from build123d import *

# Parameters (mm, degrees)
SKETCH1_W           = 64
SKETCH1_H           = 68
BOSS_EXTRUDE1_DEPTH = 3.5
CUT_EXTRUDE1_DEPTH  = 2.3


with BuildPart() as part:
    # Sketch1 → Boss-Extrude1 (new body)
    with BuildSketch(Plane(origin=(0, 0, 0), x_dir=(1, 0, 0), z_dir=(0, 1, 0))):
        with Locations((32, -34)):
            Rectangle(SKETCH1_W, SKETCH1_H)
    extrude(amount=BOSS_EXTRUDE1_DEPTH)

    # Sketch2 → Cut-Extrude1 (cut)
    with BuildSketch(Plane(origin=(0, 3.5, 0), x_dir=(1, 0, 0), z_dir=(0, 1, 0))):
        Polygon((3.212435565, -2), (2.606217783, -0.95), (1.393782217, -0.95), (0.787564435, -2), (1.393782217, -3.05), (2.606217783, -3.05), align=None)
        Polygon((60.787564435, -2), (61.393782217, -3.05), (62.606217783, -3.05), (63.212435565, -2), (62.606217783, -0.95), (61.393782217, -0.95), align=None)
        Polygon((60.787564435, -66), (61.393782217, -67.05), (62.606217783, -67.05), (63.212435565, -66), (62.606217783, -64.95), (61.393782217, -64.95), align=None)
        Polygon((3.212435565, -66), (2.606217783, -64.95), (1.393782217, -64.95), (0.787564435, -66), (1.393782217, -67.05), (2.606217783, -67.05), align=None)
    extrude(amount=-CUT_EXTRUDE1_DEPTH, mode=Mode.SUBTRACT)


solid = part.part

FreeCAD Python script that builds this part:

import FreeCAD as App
import Part
import Sketcher
Q = App.Units.Quantity

doc = App.newDocument("Part")
params = doc.addObject("Spreadsheet::Sheet", "Params")
for row, (alias, value) in enumerate([
    ("sketch1_width", "64 mm"),
    ("sketch1_height", "68 mm"),
    ("pad1_length", "3.5 mm"),
    ("pocket1_length", "2.3 mm"),
], start=1):
    params.set(f"A{row}", alias)
    params.set(f"B{row}", "=" + value)
    params.setAlias(f"B{row}", alias)

body = doc.addObject("PartDesign::Body", "Body")

# Sketch on XZ plane
sketch1 = body.newObject("Sketcher::SketchObject", "Sketch")
sketch1.AttachmentSupport = (doc.getObject("XZ_Plane"), [""])
sketch1.MapMode = "FlatFace"
sketch1.addGeometry(Part.LineSegment(App.Vector(0, 0, 0), App.Vector(0, 68, 0)), False)
sketch1.addGeometry(Part.LineSegment(App.Vector(0, 68, 0), App.Vector(64, 68, 0)), False)
sketch1.addGeometry(Part.LineSegment(App.Vector(64, 68, 0), App.Vector(64, 0, 0)), False)
sketch1.addGeometry(Part.LineSegment(App.Vector(64, 0, 0), App.Vector(0, 0, 0)), False)
sketch1.addConstraint(Sketcher.Constraint("Coincident", 0, 2, 1, 1))
sketch1.addConstraint(Sketcher.Constraint("Coincident", 1, 2, 2, 1))
sketch1.addConstraint(Sketcher.Constraint("Coincident", 2, 2, 3, 1))
sketch1.addConstraint(Sketcher.Constraint("Coincident", 3, 2, 0, 1))
sketch1.addConstraint(Sketcher.Constraint("Vertical", 0))
sketch1.addConstraint(Sketcher.Constraint("Horizontal", 1))
sketch1.addConstraint(Sketcher.Constraint("Vertical", 2))
sketch1.addConstraint(Sketcher.Constraint("Horizontal", 3))
sketch1.addConstraint(Sketcher.Constraint("Coincident", 3, 2, -1, 1))
sketch1.addConstraint(Sketcher.Constraint("DistanceX", 1, 1, 1, 2, Q("64 mm")))
sketch1.addConstraint(Sketcher.Constraint("DistanceY", 0, 1, 0, 2, Q("68 mm")))
sketch1.setExpression("Constraints[9]", "Params.sketch1_width")
sketch1.setExpression("Constraints[10]", "Params.sketch1_height")
pad1 = body.newObject("PartDesign::Pad", "Pad")
pad1.Profile = sketch1
pad1.setExpression("Length", "Params.pad1_length")
pad1.Reversed = True

# Sketch on XZ plane
sketch2 = body.newObject("Sketcher::SketchObject", "Sketch001")
sketch2.AttachmentSupport = (doc.getObject("XZ_Plane"), [""])
sketch2.MapMode = "FlatFace"
sketch2.AttachmentOffset = App.Placement(App.Vector(0, 0, -3.5), App.Rotation())
sketch2.addGeometry(Part.LineSegment(App.Vector(3.2, 2, 0), App.Vector(2.6, 0.9, 0)), False)
sketch2.addGeometry(Part.LineSegment(App.Vector(2.6, 0.9, 0), App.Vector(1.4, 0.9, 0)), False)
sketch2.addGeometry(Part.LineSegment(App.Vector(1.4, 0.9, 0), App.Vector(0.8, 2, 0)), False)
sketch2.addGeometry(Part.LineSegment(App.Vector(0.8, 2, 0), App.Vector(1.4, 3, 0)), False)
sketch2.addGeometry(Part.LineSegment(App.Vector(1.4, 3, 0), App.Vector(2.6, 3, 0)), False)
sketch2.addGeometry(Part.LineSegment(App.Vector(2.6, 3, 0), App.Vector(3.2, 2, 0)), False)
sketch2.addGeometry(Part.LineSegment(App.Vector(60.8, 2, 0), App.Vector(61.4, 3, 0)), False)
sketch2.addGeometry(Part.LineSegment(App.Vector(61.4, 3, 0), App.Vector(62.6, 3, 0)), False)
sketch2.addGeometry(Part.LineSegment(App.Vector(62.6, 3, 0), App.Vector(63.2, 2, 0)), False)
sketch2.addGeometry(Part.LineSegment(App.Vector(63.2, 2, 0), App.Vector(62.6, 0.9, 0)), False)
sketch2.addGeometry(Part.LineSegment(App.Vector(62.6, 0.9, 0), App.Vector(61.4, 0.9, 0)), False)
sketch2.addGeometry(Part.LineSegment(App.Vector(61.4, 0.9, 0), App.Vector(60.8, 2, 0)), False)
sketch2.addGeometry(Part.LineSegment(App.Vector(60.8, 66, 0), App.Vector(61.4, 67, 0)), False)
sketch2.addGeometry(Part.LineSegment(App.Vector(61.4, 67, 0), App.Vector(62.6, 67, 0)), False)
sketch2.addGeometry(Part.LineSegment(App.Vector(62.6, 67, 0), App.Vector(63.2, 66, 0)), False)
sketch2.addGeometry(Part.LineSegment(App.Vector(63.2, 66, 0), App.Vector(62.6, 65, 0)), False)
sketch2.addGeometry(Part.LineSegment(App.Vector(62.6, 65, 0), App.Vector(61.4, 65, 0)), False)
sketch2.addGeometry(Part.LineSegment(App.Vector(61.4, 65, 0), App.Vector(60.8, 66, 0)), False)
sketch2.addGeometry(Part.LineSegment(App.Vector(3.2, 66, 0), App.Vector(2.6, 65, 0)), False)
sketch2.addGeometry(Part.LineSegment(App.Vector(2.6, 65, 0), App.Vector(1.4, 65, 0)), False)
sketch2.addGeometry(Part.LineSegment(App.Vector(1.4, 65, 0), App.Vector(0.8, 66, 0)), False)
sketch2.addGeometry(Part.LineSegment(App.Vector(0.8, 66, 0), App.Vector(1.4, 67, 0)), False)
sketch2.addGeometry(Part.LineSegment(App.Vector(1.4, 67, 0), App.Vector(2.6, 67, 0)), False)
sketch2.addGeometry(Part.LineSegment(App.Vector(2.6, 67, 0), App.Vector(3.2, 66, 0)), False)
sketch2.addConstraint(Sketcher.Constraint("Coincident", 0, 2, 1, 1))
sketch2.addConstraint(Sketcher.Constraint("Coincident", 1, 2, 2, 1))
sketch2.addConstraint(Sketcher.Constraint("Coincident", 2, 2, 3, 1))
sketch2.addConstraint(Sketcher.Constraint("Coincident", 3, 2, 4, 1))
sketch2.addConstraint(Sketcher.Constraint("Coincident", 4, 2, 5, 1))
sketch2.addConstraint(Sketcher.Constraint("Coincident", 5, 2, 0, 1))
sketch2.addConstraint(Sketcher.Constraint("Coincident", 6, 2, 7, 1))
sketch2.addConstraint(Sketcher.Constraint("Coincident", 7, 2, 8, 1))
sketch2.addConstraint(Sketcher.Constraint("Coincident", 8, 2, 9, 1))
sketch2.addConstraint(Sketcher.Constraint("Coincident", 9, 2, 10, 1))
sketch2.addConstraint(Sketcher.Constraint("Coincident", 10, 2, 11, 1))
sketch2.addConstraint(Sketcher.Constraint("Coincident", 11, 2, 6, 1))
sketch2.addConstraint(Sketcher.Constraint("Coincident", 12, 2, 13, 1))
sketch2.addConstraint(Sketcher.Constraint("Coincident", 13, 2, 14, 1))
sketch2.addConstraint(Sketcher.Constraint("Coincident", 14, 2, 15, 1))
sketch2.addConstraint(Sketcher.Constraint("Coincident", 15, 2, 16, 1))
sketch2.addConstraint(Sketcher.Constraint("Coincident", 16, 2, 17, 1))
sketch2.addConstraint(Sketcher.Constraint("Coincident", 17, 2, 12, 1))
sketch2.addConstraint(Sketcher.Constraint("Coincident", 18, 2, 19, 1))
sketch2.addConstraint(Sketcher.Constraint("Coincident", 19, 2, 20, 1))
sketch2.addConstraint(Sketcher.Constraint("Coincident", 20, 2, 21, 1))
sketch2.addConstraint(Sketcher.Constraint("Coincident", 21, 2, 22, 1))
sketch2.addConstraint(Sketcher.Constraint("Coincident", 22, 2, 23, 1))
sketch2.addConstraint(Sketcher.Constraint("Coincident", 23, 2, 18, 1))
sketch2.addConstraint(Sketcher.Constraint("Horizontal", 1))
sketch2.addConstraint(Sketcher.Constraint("Horizontal", 4))
sketch2.addConstraint(Sketcher.Constraint("Horizontal", 7))
sketch2.addConstraint(Sketcher.Constraint("Horizontal", 10))
sketch2.addConstraint(Sketcher.Constraint("Horizontal", 13))
sketch2.addConstraint(Sketcher.Constraint("Horizontal", 16))
sketch2.addConstraint(Sketcher.Constraint("Horizontal", 19))
sketch2.addConstraint(Sketcher.Constraint("Horizontal", 22))
sketch2.addConstraint(Sketcher.Constraint("Parallel", 0, 3))
sketch2.addConstraint(Sketcher.Constraint("Parallel", 2, 5))
sketch2.addConstraint(Sketcher.Constraint("Parallel", 3, 6))
sketch2.addConstraint(Sketcher.Constraint("Parallel", 5, 8))
sketch2.addConstraint(Sketcher.Constraint("Parallel", 6, 9))
sketch2.addConstraint(Sketcher.Constraint("Parallel", 8, 11))
sketch2.addConstraint(Sketcher.Constraint("Parallel", 9, 12))
sketch2.addConstraint(Sketcher.Constraint("Parallel", 11, 14))
sketch2.addConstraint(Sketcher.Constraint("Parallel", 12, 15))
sketch2.addConstraint(Sketcher.Constraint("Parallel", 14, 17))
sketch2.addConstraint(Sketcher.Constraint("Parallel", 15, 18))
sketch2.addConstraint(Sketcher.Constraint("Parallel", 17, 20))
sketch2.addConstraint(Sketcher.Constraint("Parallel", 18, 21))
sketch2.addConstraint(Sketcher.Constraint("Parallel", 20, 23))
sketch2.addConstraint(Sketcher.Constraint("Horizontal", 2, 2, 5, 2))
sketch2.addConstraint(Sketcher.Constraint("Horizontal", 4, 2, 6, 2))
sketch2.addConstraint(Sketcher.Constraint("Horizontal", 5, 2, 8, 2))
sketch2.addConstraint(Sketcher.Constraint("Horizontal", 1, 2, 9, 2))
sketch2.addConstraint(Sketcher.Constraint("Horizontal", 8, 2, 11, 2))
sketch2.addConstraint(Sketcher.Constraint("Horizontal", 14, 2, 17, 2))
sketch2.addConstraint(Sketcher.Constraint("Horizontal", 16, 2, 18, 2))
sketch2.addConstraint(Sketcher.Constraint("Horizontal", 17, 2, 20, 2))
sketch2.addConstraint(Sketcher.Constraint("Horizontal", 13, 2, 21, 2))
sketch2.addConstraint(Sketcher.Constraint("Horizontal", 20, 2, 23, 2))
sketch2.addConstraint(Sketcher.Constraint("Vertical", 1, 2, 3, 2))
sketch2.addConstraint(Sketcher.Constraint("Vertical", 0, 2, 4, 2))
sketch2.addConstraint(Sketcher.Constraint("Vertical", 10, 2, 12, 2))
sketch2.addConstraint(Sketcher.Constraint("Vertical", 9, 2, 13, 2))
sketch2.addConstraint(Sketcher.Constraint("Vertical", 8, 2, 14, 2))
sketch2.addConstraint(Sketcher.Constraint("Vertical", 13, 2, 15, 2))
sketch2.addConstraint(Sketcher.Constraint("Vertical", 4, 2, 18, 2))
sketch2.addConstraint(Sketcher.Constraint("Vertical", 3, 2, 19, 2))
sketch2.addConstraint(Sketcher.Constraint("Equal", 4, 7))
sketch2.addConstraint(Sketcher.Constraint("Angle", 0, Q("-120 deg")))
sketch2.addConstraint(Sketcher.Constraint("DistanceY", -1, 1, 2, 2, Q("2 mm")))
sketch2.addConstraint(Sketcher.Constraint("DistanceY", -1, 1, 14, 2, Q("66 mm")))
sketch2.addConstraint(Sketcher.Constraint("DistanceX", 3, 2, 6, 2, Q("60 mm")))
sketch2.addConstraint(Sketcher.Constraint("DistanceY", 1, 2, 3, 2, Q("2.1 mm")))
sketch2.addConstraint(Sketcher.Constraint("DistanceX", 1, 2, 1, 1, Q("1.212436 mm")))
sketch2.addConstraint(Sketcher.Constraint("DistanceX", -1, 1, 0, 2, Q("2.606218 mm")))
pocket1 = body.newObject("PartDesign::Pocket", "Pocket")
pocket1.Profile = sketch2
pocket1.setExpression("Length", "Params.pocket1_length")
pocket1.Reversed = True

doc.recompute()
